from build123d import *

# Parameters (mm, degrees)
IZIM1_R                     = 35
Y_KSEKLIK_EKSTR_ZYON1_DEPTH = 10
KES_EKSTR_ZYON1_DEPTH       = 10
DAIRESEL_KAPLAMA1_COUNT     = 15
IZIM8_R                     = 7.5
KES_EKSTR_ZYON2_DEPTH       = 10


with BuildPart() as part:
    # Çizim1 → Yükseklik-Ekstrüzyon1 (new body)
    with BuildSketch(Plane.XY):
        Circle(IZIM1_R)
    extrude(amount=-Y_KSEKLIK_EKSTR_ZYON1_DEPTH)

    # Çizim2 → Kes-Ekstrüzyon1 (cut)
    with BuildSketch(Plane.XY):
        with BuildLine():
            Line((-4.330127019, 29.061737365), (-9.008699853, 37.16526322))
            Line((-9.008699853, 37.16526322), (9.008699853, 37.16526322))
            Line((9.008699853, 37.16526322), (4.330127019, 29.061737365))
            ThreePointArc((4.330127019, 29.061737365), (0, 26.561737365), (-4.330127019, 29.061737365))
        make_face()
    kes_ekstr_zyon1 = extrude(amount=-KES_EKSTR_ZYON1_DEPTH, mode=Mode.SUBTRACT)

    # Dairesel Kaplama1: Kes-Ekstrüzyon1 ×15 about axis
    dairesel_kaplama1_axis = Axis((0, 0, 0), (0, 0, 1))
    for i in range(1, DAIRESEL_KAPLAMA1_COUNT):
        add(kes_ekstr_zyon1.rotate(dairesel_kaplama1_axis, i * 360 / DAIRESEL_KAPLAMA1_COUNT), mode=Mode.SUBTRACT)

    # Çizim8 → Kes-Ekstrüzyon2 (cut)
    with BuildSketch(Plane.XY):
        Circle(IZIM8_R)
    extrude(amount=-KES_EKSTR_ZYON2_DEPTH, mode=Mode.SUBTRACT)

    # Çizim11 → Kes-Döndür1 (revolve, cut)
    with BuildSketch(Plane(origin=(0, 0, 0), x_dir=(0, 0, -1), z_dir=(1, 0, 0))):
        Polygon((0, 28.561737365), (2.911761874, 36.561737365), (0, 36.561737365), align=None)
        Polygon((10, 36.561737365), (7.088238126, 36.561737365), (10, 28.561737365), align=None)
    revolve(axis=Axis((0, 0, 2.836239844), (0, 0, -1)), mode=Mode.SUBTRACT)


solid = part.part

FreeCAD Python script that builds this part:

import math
import FreeCAD as App
import Part
import Sketcher
from FreeCAD import Vector
Q = App.Units.Quantity

doc = App.newDocument("Part")
body = doc.addObject("PartDesign::Body", "Body")

# Sketch on XY plane
sketch1 = doc.addObject("Sketcher::SketchObject", "Sketch")
body.addObject(sketch1)
sketch1.AttachmentSupport = (doc.XY_Plane, [""])
sketch1.MapMode = "FlatFace"
sketch1.addGeometry(Part.Circle(Vector(0, 0, 0), Vector(0, 0, 1), 35), False)
sketch1.addConstraint(Sketcher.Constraint("Coincident", 0, 3, -1, 1))
sketch1.addConstraint(Sketcher.Constraint("Diameter", 0, Q("70 mm")))
pad1 = doc.addObject("PartDesign::Pad", "Pad")
body.addObject(pad1)
pad1.Profile = sketch1
pad1.Length = 10
pad1.Reversed = True

# Sketch on XY plane
sketch2 = doc.addObject("Sketcher::SketchObject", "Sketch001")
body.addObject(sketch2)
sketch2.AttachmentSupport = (doc.XY_Plane, [""])
sketch2.MapMode = "FlatFace"
sketch2.addGeometry(Part.LineSegment(Vector(-9.0087, 37.165263, 0), Vector(-4.330127, 29.061737, 0)), False)
sketch2.addGeometry(Part.ArcOfCircle(Part.Circle(Vector(0, 31.561737, 0), Vector(0, 0, 1), 5), math.radians(-150), math.radians(-30)), False)
sketch2.addGeometry(Part.LineSegment(Vector(4.330127, 29.061737, 0), Vector(9.0087, 37.165263, 0)), False)
sketch2.addGeometry(Part.LineSegment(Vector(9.0087, 37.165263, 0), Vector(-9.0087, 37.165263, 0)), False)
sketch2.addConstraint(Sketcher.Constraint("Tangent", 0, 2, 1, 1))
sketch2.addConstraint(Sketcher.Constraint("Tangent", 1, 2, 2, 1))
sketch2.addConstraint(Sketcher.Constraint("Coincident", 2, 2, 3, 1))
sketch2.addConstraint(Sketcher.Constraint("Coincident", 3, 2, 0, 1))
sketch2.addConstraint(Sketcher.Constraint("Horizontal", 3))
sketch2.addConstraint(Sketcher.Constraint("Symmetric", 0, 2, 1, 2, -2))
sketch2.addConstraint(Sketcher.Constraint("Radius", 1, Q("5 mm")))
sketch2.addConstraint(Sketcher.Constraint("Angle", 0, Q("-60 deg")))
sketch2.addConstraint(Sketcher.Constraint("DistanceX", 3, 2, 3, 1, Q("18.0174 mm")))
sketch2.addConstraint(Sketcher.Constraint("DistanceY", -1, 1, 1, 3, Q("31.561737 mm")))
pocket1 = doc.addObject("PartDesign::Pocket", "Pocket")
body.addObject(pocket1)
pocket1.Profile = sketch2
pocket1.Length = 10
doc.recompute()

polarpattern = doc.addObject("PartDesign::PolarPattern", "PolarPattern")
body.addObject(polarpattern)
polarpattern.Originals = [pocket1]
polarpattern.Axis = (doc.Z_Axis, [""])
polarpattern.Angle = 360
polarpattern.Occurrences = 15
body.Tip = polarpattern

# Sketch on XY plane
sketch3 = doc.addObject("Sketcher::SketchObject", "Sketch002")
body.addObject(sketch3)
sketch3.AttachmentSupport = (doc.XY_Plane, [""])
sketch3.MapMode = "FlatFace"
sketch3.addGeometry(Part.Circle(Vector(0, 0, 0), Vector(0, 0, 1), 7.5), False)
sketch3.addConstraint(Sketcher.Constraint("Coincident", 0, 3, -1, 1))
sketch3.addConstraint(Sketcher.Constraint("Diameter", 0, Q("15 mm")))
pocket2 = doc.addObject("PartDesign::Pocket", "Pocket001")
body.addObject(pocket2)
pocket2.Profile = sketch3
pocket2.Length = 10

# Sketch on YZ plane
sketch4 = doc.addObject("Sketcher::SketchObject", "Sketch003")
body.addObject(sketch4)
sketch4.AttachmentSupport = (doc.YZ_Plane, [""])
sketch4.MapMode = "FlatFace"
sketch4.addGeometry(Part.LineSegment(Vector(28.561737, 0, 0), Vector(36.561737, -2.911762, 0)), False)
sketch4.addGeometry(Part.LineSegment(Vector(36.561737, -2.911762, 0), Vector(36.561737, 0, 0)), False)
sketch4.addGeometry(Part.LineSegment(Vector(36.561737, 0, 0), Vector(28.561737, 0, 0)), False)
sketch4.addGeometry(Part.LineSegment(Vector(36.561737, -10, 0), Vector(36.561737, -7.088238, 0)), False)
sketch4.addGeometry(Part.LineSegment(Vector(36.561737, -7.088238, 0), Vector(28.561737, -10, 0)), False)
sketch4.addGeometry(Part.LineSegment(Vector(28.561737, -10, 0), Vector(36.561737, -10, 0)), False)
sketch4.addConstraint(Sketcher.Constraint("Coincident", 0, 2, 1, 1))
sketch4.addConstraint(Sketcher.Constraint("Coincident", 1, 2, 2, 1))
sketch4.addConstraint(Sketcher.Constraint("Coincident", 2, 2, 0, 1))
sketch4.addConstraint(Sketcher.Constraint("Coincident", 3, 2, 4, 1))
sketch4.addConstraint(Sketcher.Constraint("Coincident", 4, 2, 5, 1))
sketch4.addConstraint(Sketcher.Constraint("Coincident", 5, 2, 3, 1))
sketch4.addConstraint(Sketcher.Constraint("Vertical", 1))
sketch4.addConstraint(Sketcher.Constraint("Horizontal", 2))
sketch4.addConstraint(Sketcher.Constraint("Vertical", 3))
sketch4.addConstraint(Sketcher.Constraint("Horizontal", 5))
sketch4.addConstraint(Sketcher.Constraint("PointOnObject", 1, 2, -1))
sketch4.addConstraint(Sketcher.Constraint("Vertical", 1, 2, 3, 2))
sketch4.addConstraint(Sketcher.Constraint("Vertical", 2, 2, 4, 2))
sketch4.addConstraint(Sketcher.Constraint("Equal", 1, 3))
sketch4.addConstraint(Sketcher.Constraint("DistanceX", 2, 2, 2, 1, Q("8 mm")))
sketch4.addConstraint(Sketcher.Constraint("Angle", 0, Q("-20 deg")))
sketch4.addConstraint(Sketcher.Constraint("DistanceY", 4, 2, -1, 1, Q("10 mm")))
sketch4.addConstraint(Sketcher.Constraint("DistanceX", -1, 1, 0, 2, Q("36.561737 mm")))
groove = doc.addObject("PartDesign::Groove", "Groove")
body.addObject(groove)
groove.Profile = sketch4
groove.ReferenceAxis = (sketch4, ["V_Axis"])
groove.Angle = 360

doc.recompute()
